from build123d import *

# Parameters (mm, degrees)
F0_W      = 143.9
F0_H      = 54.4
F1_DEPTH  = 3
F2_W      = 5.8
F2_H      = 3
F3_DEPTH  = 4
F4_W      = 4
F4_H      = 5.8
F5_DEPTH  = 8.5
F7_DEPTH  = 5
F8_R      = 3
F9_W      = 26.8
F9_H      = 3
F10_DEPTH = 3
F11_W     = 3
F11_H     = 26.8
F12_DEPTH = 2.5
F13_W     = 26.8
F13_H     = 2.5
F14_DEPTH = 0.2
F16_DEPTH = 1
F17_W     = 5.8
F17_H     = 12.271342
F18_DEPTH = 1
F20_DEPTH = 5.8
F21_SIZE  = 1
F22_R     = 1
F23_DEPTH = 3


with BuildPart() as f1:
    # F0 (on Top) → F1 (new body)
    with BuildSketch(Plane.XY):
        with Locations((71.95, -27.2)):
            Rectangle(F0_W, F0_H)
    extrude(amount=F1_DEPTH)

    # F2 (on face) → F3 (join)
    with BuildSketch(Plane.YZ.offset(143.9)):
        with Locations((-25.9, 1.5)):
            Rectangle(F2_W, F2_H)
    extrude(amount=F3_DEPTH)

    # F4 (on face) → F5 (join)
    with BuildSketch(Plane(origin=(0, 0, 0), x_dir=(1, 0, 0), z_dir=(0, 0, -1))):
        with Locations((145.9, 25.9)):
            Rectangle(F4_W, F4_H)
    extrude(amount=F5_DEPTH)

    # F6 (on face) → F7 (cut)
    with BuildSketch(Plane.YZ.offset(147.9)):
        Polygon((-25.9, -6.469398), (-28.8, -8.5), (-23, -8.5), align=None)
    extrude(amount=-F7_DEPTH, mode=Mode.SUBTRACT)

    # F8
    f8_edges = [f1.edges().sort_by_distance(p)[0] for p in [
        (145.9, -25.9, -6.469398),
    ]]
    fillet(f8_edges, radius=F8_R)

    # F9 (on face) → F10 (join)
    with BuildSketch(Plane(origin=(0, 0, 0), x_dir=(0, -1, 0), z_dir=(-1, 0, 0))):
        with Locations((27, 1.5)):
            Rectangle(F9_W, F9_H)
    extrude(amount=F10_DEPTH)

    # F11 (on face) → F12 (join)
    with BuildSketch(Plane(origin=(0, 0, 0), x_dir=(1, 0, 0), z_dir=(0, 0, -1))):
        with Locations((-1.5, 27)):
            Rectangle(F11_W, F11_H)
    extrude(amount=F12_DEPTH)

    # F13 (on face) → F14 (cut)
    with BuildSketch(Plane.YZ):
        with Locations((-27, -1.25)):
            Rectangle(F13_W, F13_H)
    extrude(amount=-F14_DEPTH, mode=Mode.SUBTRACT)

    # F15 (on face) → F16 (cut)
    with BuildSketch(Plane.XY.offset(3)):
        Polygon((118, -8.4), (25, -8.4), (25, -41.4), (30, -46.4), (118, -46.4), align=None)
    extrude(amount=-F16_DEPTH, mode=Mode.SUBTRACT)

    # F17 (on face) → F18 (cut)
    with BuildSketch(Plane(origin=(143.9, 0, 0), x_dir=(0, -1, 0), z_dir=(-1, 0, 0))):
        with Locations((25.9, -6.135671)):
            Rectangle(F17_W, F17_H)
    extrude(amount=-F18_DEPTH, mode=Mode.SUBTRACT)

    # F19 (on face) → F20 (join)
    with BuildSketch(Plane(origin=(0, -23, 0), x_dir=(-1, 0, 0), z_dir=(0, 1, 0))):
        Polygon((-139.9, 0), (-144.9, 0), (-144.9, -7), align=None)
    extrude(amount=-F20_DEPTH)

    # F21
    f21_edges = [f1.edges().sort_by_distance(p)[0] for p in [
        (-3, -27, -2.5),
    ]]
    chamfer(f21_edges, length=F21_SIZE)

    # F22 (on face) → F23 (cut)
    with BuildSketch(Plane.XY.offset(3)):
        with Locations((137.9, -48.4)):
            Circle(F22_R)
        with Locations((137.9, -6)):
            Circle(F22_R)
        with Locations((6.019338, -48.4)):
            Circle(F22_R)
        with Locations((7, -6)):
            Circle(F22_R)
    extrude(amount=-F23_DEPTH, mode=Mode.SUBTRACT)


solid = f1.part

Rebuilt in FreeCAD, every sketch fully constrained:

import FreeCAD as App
import Part
import Sketcher
from FreeCAD import Vector
Q = App.Units.Quantity


def edges_at(feature, points):
    """Names of the edges that pass closest to the given points."""
    edges = feature.Shape.Edges
    near = lambda p: min(range(len(edges)), key=lambda i: edges[i].distToShape(Part.Vertex(*p))[0])
    return sorted({f"Edge{near(p) + 1}" for p in points})

doc = App.newDocument("Part")
body = doc.addObject("PartDesign::Body", "Body")

# Sketch on XY plane
sketch1 = doc.addObject("Sketcher::SketchObject", "Sketch")
body.addObject(sketch1)
sketch1.AttachmentSupport = (doc.XY_Plane, [""])
sketch1.MapMode = "FlatFace"
sketch1.addGeometry(Part.LineSegment(Vector(0, 0, 0), Vector(0, -54.4, 0)), False)
sketch1.addGeometry(Part.LineSegment(Vector(0, -54.4, 0), Vector(143.9, -54.4, 0)), False)
sketch1.addGeometry(Part.LineSegment(Vector(143.9, -54.4, 0), Vector(143.9, 0, 0)), False)
sketch1.addGeometry(Part.LineSegment(Vector(143.9, 0, 0), Vector(0, 0, 0)), False)
sketch1.addConstraint(Sketcher.Constraint("Coincident", 0, 2, 1, 1))
sketch1.addConstraint(Sketcher.Constraint("Coincident", 1, 2, 2, 1))
sketch1.addConstraint(Sketcher.Constraint("Coincident", 2, 2, 3, 1))
sketch1.addConstraint(Sketcher.Constraint("Coincident", 3, 2, 0, 1))
sketch1.addConstraint(Sketcher.Constraint("Vertical", 0))
sketch1.addConstraint(Sketcher.Constraint("Horizontal", 1))
sketch1.addConstraint(Sketcher.Constraint("Vertical", 2))
sketch1.addConstraint(Sketcher.Constraint("Horizontal", 3))
sketch1.addConstraint(Sketcher.Constraint("Coincident", 3, 2, -1, 1))
sketch1.addConstraint(Sketcher.Constraint("DistanceX", 1, 1, 1, 2, Q("143.9 mm")))
sketch1.addConstraint(Sketcher.Constraint("DistanceY", 0, 2, 0, 1, Q("54.4 mm")))
pad1 = doc.addObject("PartDesign::Pad", "Pad")
body.addObject(pad1)
pad1.Profile = sketch1
pad1.Length = 3

# Sketch on YZ plane
sketch2 = doc.addObject("Sketcher::SketchObject", "Sketch001")
body.addObject(sketch2)
sketch2.AttachmentSupport = (doc.YZ_Plane, [""])
sketch2.MapMode = "FlatFace"
sketch2.AttachmentOffset = App.Placement(Vector(0, 0, 143.9), App.Rotation())
sketch2.addGeometry(Part.LineSegment(Vector(-28.8, 3, 0), Vector(-28.8, 0, 0)), False)
sketch2.addGeometry(Part.LineSegment(Vector(-28.8, 0, 0), Vector(-23, 0, 0)), False)
sketch2.addGeometry(Part.LineSegment(Vector(-23, 0, 0), Vector(-23, 3, 0)), False)
sketch2.addGeometry(Part.LineSegment(Vector(-23, 3, 0), Vector(-28.8, 3, 0)), False)
sketch2.addConstraint(Sketcher.Constraint("Coincident", 0, 2, 1, 1))
sketch2.addConstraint(Sketcher.Constraint("Coincident", 1, 2, 2, 1))
sketch2.addConstraint(Sketcher.Constraint("Coincident", 2, 2, 3, 1))
sketch2.addConstraint(Sketcher.Constraint("Coincident", 3, 2, 0, 1))
sketch2.addConstraint(Sketcher.Constraint("Vertical", 0))
sketch2.addConstraint(Sketcher.Constraint("Horizontal", 1))
sketch2.addConstraint(Sketcher.Constraint("Vertical", 2))
sketch2.addConstraint(Sketcher.Constraint("Horizontal", 3))
sketch2.addConstraint(Sketcher.Constraint("PointOnObject", 0, 2, -1))
sketch2.addConstraint(Sketcher.Constraint("DistanceY", 0, 2, 0, 1, Q("3 mm")))
sketch2.addConstraint(Sketcher.Constraint("DistanceX", 1, 1, 1, 2, Q("5.8 mm")))
sketch2.addConstraint(Sketcher.Constraint("DistanceX", 1, 2, -1, 1, Q("23 mm")))
pad2 = doc.addObject("PartDesign::Pad", "Pad001")
body.addObject(pad2)
pad2.Profile = sketch2
pad2.Length = 4

# Sketch on XY plane
sketch3 = doc.addObject("Sketcher::SketchObject", "Sketch002")
body.addObject(sketch3)
sketch3.AttachmentSupport = (doc.XY_Plane, [""])
sketch3.MapMode = "FlatFace"
sketch3.addGeometry(Part.LineSegment(Vector(143.9, -28.8, 0), Vector(143.9, -23, 0)), False)
sketch3.addGeometry(Part.LineSegment(Vector(143.9, -23, 0), Vector(147.9, -23, 0)), False)
sketch3.addGeometry(Part.LineSegment(Vector(147.9, -23, 0), Vector(147.9, -28.8, 0)), False)
sketch3.addGeometry(Part.LineSegment(Vector(147.9, -28.8, 0), Vector(143.9, -28.8, 0)), False)
sketch3.addConstraint(Sketcher.Constraint("Coincident", 0, 2, 1, 1))
sketch3.addConstraint(Sketcher.Constraint("Coincident", 1, 2, 2, 1))
sketch3.addConstraint(Sketcher.Constraint("Coincident", 2, 2, 3, 1))
sketch3.addConstraint(Sketcher.Constraint("Coincident", 3, 2, 0, 1))
sketch3.addConstraint(Sketcher.Constraint("Vertical", 0))
sketch3.addConstraint(Sketcher.Constraint("Horizontal", 1))
sketch3.addConstraint(Sketcher.Constraint("Vertical", 2))
sketch3.addConstraint(Sketcher.Constraint("Horizontal", 3))
sketch3.addConstraint(Sketcher.Constraint("DistanceX", 1, 1, 1, 2, Q("4 mm")))
sketch3.addConstraint(Sketcher.Constraint("DistanceY", 0, 1, 0, 2, Q("5.8 mm")))
sketch3.addConstraint(Sketcher.Constraint("DistanceY", 0, 2, -1, 1, Q("23 mm")))
sketch3.addConstraint(Sketcher.Constraint("DistanceX", -1, 1, 0, 2, Q("143.9 mm")))
pad3 = doc.addObject("PartDesign::Pad", "Pad002")
body.addObject(pad3)
pad3.Profile = sketch3
pad3.Length = 8.5
pad3.Reversed = True

# Sketch on YZ plane
sketch4 = doc.addObject("Sketcher::SketchObject", "Sketch003")
body.addObject(sketch4)
sketch4.AttachmentSupport = (doc.YZ_Plane, [""])
sketch4.MapMode = "FlatFace"
sketch4.AttachmentOffset = App.Placement(Vector(0, 0, 147.9), App.Rotation())
sketch4.addGeometry(Part.LineSegment(Vector(-25.9, -6.469398, 0), Vector(-28.8, -8.5, 0)), False)
sketch4.addGeometry(Part.LineSegment(Vector(-28.8, -8.5, 0), Vector(-23, -8.5, 0)), False)
sketch4.addGeometry(Part.LineSegment(Vector(-23, -8.5, 0), Vector(-25.9, -6.469398, 0)), False)
sketch4.addConstraint(Sketcher.Constraint("Coincident", 0, 2, 1, 1))
sketch4.addConstraint(Sketcher.Constraint("Coincident", 1, 2, 2, 1))
sketch4.addConstraint(Sketcher.Constraint("Coincident", 2, 2, 0, 1))
sketch4.addConstraint(Sketcher.Constraint("Horizontal", 1))
sketch4.addConstraint(Sketcher.Constraint("Equal", 0, 2))
sketch4.addConstraint(Sketcher.Constraint("Angle", 0, Q("-144.999998 deg")))
sketch4.addConstraint(Sketcher.Constraint("DistanceX", 1, 1, 1, 2, Q("5.8 mm")))
sketch4.addConstraint(Sketcher.Constraint("DistanceX", 1, 2, -1, 1, Q("23 mm")))
sketch4.addConstraint(Sketcher.Constraint("DistanceY", 0, 2, -1, 1, Q("8.5 mm")))
pocket1 = doc.addObject("PartDesign::Pocket", "Pocket")
body.addObject(pocket1)
pocket1.Profile = sketch4
pocket1.Length = 5
doc.recompute()

fillet = doc.addObject("PartDesign::Fillet", "Fillet")
body.addObject(fillet)
fillet.Base = (pocket1, edges_at(pocket1, [(145.9, -25.9, -6.469)]))
fillet.Radius = 3

# Sketch on YZ plane
sketch5 = doc.addObject("Sketcher::SketchObject", "Sketch004")
body.addObject(sketch5)
sketch5.AttachmentSupport = (doc.YZ_Plane, [""])
sketch5.MapMode = "FlatFace"
sketch5.addGeometry(Part.LineSegment(Vector(-13.6, 3, 0), Vector(-13.6, 0, 0)), False)
sketch5.addGeometry(Part.LineSegment(Vector(-13.6, 0, 0), Vector(-40.4, 0, 0)), False)
sketch5.addGeometry(Part.LineSegment(Vector(-40.4, 0, 0), Vector(-40.4, 3, 0)), False)
sketch5.addGeometry(Part.LineSegment(Vector(-40.4, 3, 0), Vector(-13.6, 3, 0)), False)
sketch5.addConstraint(Sketcher.Constraint("Coincident", 0, 2, 1, 1))
sketch5.addConstraint(Sketcher.Constraint("Coincident", 1, 2, 2, 1))
sketch5.addConstraint(Sketcher.Constraint("Coincident", 2, 2, 3, 1))
sketch5.addConstraint(Sketcher.Constraint("Coincident", 3, 2, 0, 1))
sketch5.addConstraint(Sketcher.Constraint("Vertical", 0))
sketch5.addConstraint(Sketcher.Constraint("Horizontal", 1))
sketch5.addConstraint(Sketcher.Constraint("Vertical", 2))
sketch5.addConstraint(Sketcher.Constraint("Horizontal", 3))
sketch5.addConstraint(Sketcher.Constraint("PointOnObject", 0, 2, -1))
sketch5.addConstraint(Sketcher.Constraint("DistanceY", 0, 2, 0, 1, Q("3 mm")))
sketch5.addConstraint(Sketcher.Constraint("DistanceX", 1, 2, 1, 1, Q("26.8 mm")))
sketch5.addConstraint(Sketcher.Constraint("DistanceX", 0, 2, -1, 1, Q("13.6 mm")))
pad4 = doc.addObject("PartDesign::Pad", "Pad003")
body.addObject(pad4)
pad4.Profile = sketch5
pad4.Length = 3
pad4.Reversed = True

# Sketch on XY plane
sketch6 = doc.addObject("Sketcher::SketchObject", "Sketch005")
body.addObject(sketch6)
sketch6.AttachmentSupport = (doc.XY_Plane, [""])
sketch6.MapMode = "FlatFace"
sketch6.addGeometry(Part.LineSegment(Vector(-3, -40.4, 0), Vector(-3, -13.6, 0)), False)
sketch6.addGeometry(Part.LineSegment(Vector(-3, -13.6, 0), Vector(0, -13.6, 0)), False)
sketch6.addGeometry(Part.LineSegment(Vector(0, -13.6, 0), Vector(0, -40.4, 0)), False)
sketch6.addGeometry(Part.LineSegment(Vector(0, -40.4, 0), Vector(-3, -40.4, 0)), False)
sketch6.addConstraint(Sketcher.Constraint("Coincident", 0, 2, 1, 1))
sketch6.addConstraint(Sketcher.Constraint("Coincident", 1, 2, 2, 1))
sketch6.addConstraint(Sketcher.Constraint("Coincident", 2, 2, 3, 1))
sketch6.addConstraint(Sketcher.Constraint("Coincident", 3, 2, 0, 1))
sketch6.addConstraint(Sketcher.Constraint("Vertical", 0))
sketch6.addConstraint(Sketcher.Constraint("Horizontal", 1))
sketch6.addConstraint(Sketcher.Constraint("Vertical", 2))
sketch6.addConstraint(Sketcher.Constraint("Horizontal", 3))
sketch6.addConstraint(Sketcher.Constraint("PointOnObject", 1, 2, -2))
sketch6.addConstraint(Sketcher.Constraint("DistanceX", 1, 1, 1, 2, Q("3 mm")))
sketch6.addConstraint(Sketcher.Constraint("DistanceY", 0, 1, 0, 2, Q("26.8 mm")))
sketch6.addConstraint(Sketcher.Constraint("DistanceY", 0, 2, -1, 1, Q("13.6 mm")))
pad5 = doc.addObject("PartDesign::Pad", "Pad004")
body.addObject(pad5)
pad5.Profile = sketch6
pad5.Length = 2.5
pad5.Reversed = True

# Sketch on YZ plane
sketch7 = doc.addObject("Sketcher::SketchObject", "Sketch006")
body.addObject(sketch7)
sketch7.AttachmentSupport = (doc.YZ_Plane, [""])
sketch7.MapMode = "FlatFace"
sketch7.addGeometry(Part.LineSegment(Vector(-40.4, 0, 0), Vector(-40.4, -2.5, 0)), False)
sketch7.addGeometry(Part.LineSegment(Vector(-40.4, -2.5, 0), Vector(-13.6, -2.5, 0)), False)
sketch7.addGeometry(Part.LineSegment(Vector(-13.6, -2.5, 0), Vector(-13.6, 0, 0)), False)
sketch7.addGeometry(Part.LineSegment(Vector(-13.6, 0, 0), Vector(-40.4, 0, 0)), False)
sketch7.addConstraint(Sketcher.Constraint("Coincident", 0, 2, 1, 1))
sketch7.addConstraint(Sketcher.Constraint("Coincident", 1, 2, 2, 1))
sketch7.addConstraint(Sketcher.Constraint("Coincident", 2, 2, 3, 1))
sketch7.addConstraint(Sketcher.Constraint("Coincident", 3, 2, 0, 1))
sketch7.addConstraint(Sketcher.Constraint("Vertical", 0))
sketch7.addConstraint(Sketcher.Constraint("Horizontal", 1))
sketch7.addConstraint(Sketcher.Constraint("Vertical", 2))
sketch7.addConstraint(Sketcher.Constraint("Horizontal", 3))
sketch7.addConstraint(Sketcher.Constraint("PointOnObject", 2, 2, -1))
sketch7.addConstraint(Sketcher.Constraint("DistanceX", 1, 1, 1, 2, Q("26.8 mm")))
sketch7.addConstraint(Sketcher.Constraint("DistanceY", 0, 2, 0, 1, Q("2.5 mm")))
sketch7.addConstraint(Sketcher.Constraint("DistanceX", 0, 2, -1, 1, Q("40.4 mm")))
pocket2 = doc.addObject("PartDesign::Pocket", "Pocket001")
body.addObject(pocket2)
pocket2.Profile = sketch7
pocket2.Length = 0.2

# Sketch on XY plane
sketch8 = doc.addObject("Sketcher::SketchObject", "Sketch007")
body.addObject(sketch8)
sketch8.AttachmentSupport = (doc.XY_Plane, [""])
sketch8.MapMode = "FlatFace"
sketch8.AttachmentOffset = App.Placement(Vector(0, 0, 3), App.Rotation())
sketch8.addGeometry(Part.LineSegment(Vector(118, -8.4, 0), Vector(25, -8.4, 0)), False)
sketch8.addGeometry(Part.LineSegment(Vector(25, -8.4, 0), Vector(25, -41.4, 0)), False)
sketch8.addGeometry(Part.LineSegment(Vector(25, -41.4, 0), Vector(30, -46.4, 0)), False)
sketch8.addGeometry(Part.LineSegment(Vector(30, -46.4, 0), Vector(118, -46.4, 0)), False)
sketch8.addGeometry(Part.LineSegment(Vector(118, -46.4, 0), Vector(118, -8.4, 0)), False)
sketch8.addConstraint(Sketcher.Constraint("Coincident", 0, 2, 1, 1))
sketch8.addConstraint(Sketcher.Constraint("Coincident", 1, 2, 2, 1))
sketch8.addConstraint(Sketcher.Constraint("Coincident", 2, 2, 3, 1))
sketch8.addConstraint(Sketcher.Constraint("Coincident", 3, 2, 4, 1))
sketch8.addConstraint(Sketcher.Constraint("Coincident", 4, 2, 0, 1))
sketch8.addConstraint(Sketcher.Constraint("Horizontal", 0))
sketch8.addConstraint(Sketcher.Constraint("Vertical", 1))
sketch8.addConstraint(Sketcher.Constraint("Horizontal", 3))
sketch8.addConstraint(Sketcher.Constraint("Vertical", 4))
sketch8.addConstraint(Sketcher.Constraint("DistanceX", 0, 2, 0, 1, Q("93 mm")))
sketch8.addConstraint(Sketcher.Constraint("DistanceX", 3, 1, 3, 2, Q("88 mm")))
sketch8.addConstraint(Sketcher.Constraint("DistanceY", 1, 2, 1, 1, Q("33 mm")))
sketch8.addConstraint(Sketcher.Constraint("DistanceY", 4, 1, 4, 2, Q("38 mm")))
sketch8.addConstraint(Sketcher.Constraint("DistanceX", -1, 1, 0, 2, Q("25 mm")))
sketch8.addConstraint(Sketcher.Constraint("DistanceY", 0, 2, -1, 1, Q("8.4 mm")))
pocket3 = doc.addObject("PartDesign::Pocket", "Pocket002")
body.addObject(pocket3)
pocket3.Profile = sketch8
pocket3.Length = 1

# Sketch on YZ plane
sketch9 = doc.addObject("Sketcher::SketchObject", "Sketch008")
body.addObject(sketch9)
sketch9.AttachmentSupport = (doc.YZ_Plane, [""])
sketch9.MapMode = "FlatFace"
sketch9.AttachmentOffset = App.Placement(Vector(0, 0, 143.9), App.Rotation())
sketch9.addGeometry(Part.LineSegment(Vector(-23, 0, 0), Vector(-23, -12.271342, 0)), False)
sketch9.addGeometry(Part.LineSegment(Vector(-23, -12.271342, 0), Vector(-28.8, -12.271342, 0)), False)
sketch9.addGeometry(Part.LineSegment(Vector(-28.8, -12.271342, 0), Vector(-28.8, 0, 0)), False)
sketch9.addGeometry(Part.LineSegment(Vector(-28.8, 0, 0), Vector(-23, 0, 0)), False)
sketch9.addConstraint(Sketcher.Constraint("Coincident", 0, 2, 1, 1))
sketch9.addConstraint(Sketcher.Constraint("Coincident", 1, 2, 2, 1))
sketch9.addConstraint(Sketcher.Constraint("Coincident", 2, 2, 3, 1))
sketch9.addConstraint(Sketcher.Constraint("Coincident", 3, 2, 0, 1))
sketch9.addConstraint(Sketcher.Constraint("Vertical", 0))
sketch9.addConstraint(Sketcher.Constraint("Horizontal", 1))
sketch9.addConstraint(Sketcher.Constraint("Vertical", 2))
sketch9.addConstraint(Sketcher.Constraint("Horizontal", 3))
sketch9.addConstraint(Sketcher.Constraint("PointOnObject", 2, 2, -1))
sketch9.addConstraint(Sketcher.Constraint("DistanceX", 1, 2, 1, 1, Q("5.8 mm")))
sketch9.addConstraint(Sketcher.Constraint("DistanceX", 0, 2, -1, 1, Q("23 mm")))
sketch9.addConstraint(Sketcher.Constraint("DistanceY", 0, 2, 0, 1, Q("12.271342 mm")))
pocket4 = doc.addObject("PartDesign::Pocket", "Pocket003")
body.addObject(pocket4)
pocket4.Profile = sketch9
pocket4.Length = 1
pocket4.Reversed = True

# Sketch on XZ plane
sketch10 = doc.addObject("Sketcher::SketchObject", "Sketch009")
body.addObject(sketch10)
sketch10.AttachmentSupport = (doc.XZ_Plane, [""])
sketch10.MapMode = "FlatFace"
sketch10.AttachmentOffset = App.Placement(Vector(0, 0, 23), App.Rotation())
sketch10.addGeometry(Part.LineSegment(Vector(139.9, 0, 0), Vector(144.9, 0, 0)), False)
sketch10.addGeometry(Part.LineSegment(Vector(144.9, 0, 0), Vector(144.9, -7, 0)), False)
sketch10.addGeometry(Part.LineSegment(Vector(144.9, -7, 0), Vector(139.9, 0, 0)), False)
sketch10.addConstraint(Sketcher.Constraint("Coincident", 0, 2, 1, 1))
sketch10.addConstraint(Sketcher.Constraint("Coincident", 1, 2, 2, 1))
sketch10.addConstraint(Sketcher.Constraint("Coincident", 2, 2, 0, 1))
sketch10.addConstraint(Sketcher.Constraint("Horizontal", 0))
sketch10.addConstraint(Sketcher.Constraint("Vertical", 1))
sketch10.addConstraint(Sketcher.Constraint("PointOnObject", 0, 2, -1))
sketch10.addConstraint(Sketcher.Constraint("DistanceX", 0, 1, 0, 2, Q("5 mm")))
sketch10.addConstraint(Sketcher.Constraint("DistanceY", 1, 2, 1, 1, Q("7 mm")))
sketch10.addConstraint(Sketcher.Constraint("DistanceX", -1, 1, 0, 2, Q("144.9 mm")))
pad6 = doc.addObject("PartDesign::Pad", "Pad005")
body.addObject(pad6)
pad6.Profile = sketch10
pad6.Length = 5.8
doc.recompute()

chamfer = doc.addObject("PartDesign::Chamfer", "Chamfer")
body.addObject(chamfer)
chamfer.Base = (pad6, edges_at(pad6, [(-3, -27, -2.5)]))
chamfer.Size = 1

# Sketch on XY plane
sketch11 = doc.addObject("Sketcher::SketchObject", "Sketch010")
body.addObject(sketch11)
sketch11.AttachmentSupport = (doc.XY_Plane, [""])
sketch11.MapMode = "FlatFace"
sketch11.AttachmentOffset = App.Placement(Vector(0, 0, 3), App.Rotation())
sketch11.addGeometry(Part.Circle(Vector(137.9, -48.4, 0), Vector(0, 0, 1), 1), False)
sketch11.addGeometry(Part.Circle(Vector(137.9, -6, 0), Vector(0, 0, 1), 1), False)
sketch11.addGeometry(Part.Circle(Vector(6.019338, -48.4, 0), Vector(0, 0, 1), 1), False)
sketch11.addGeometry(Part.Circle(Vector(7, -6, 0), Vector(0, 0, 1), 1), False)
sketch11.addConstraint(Sketcher.Constraint("Equal", 0, 1))
sketch11.addConstraint(Sketcher.Constraint("Equal", 1, 2))
sketch11.addConstraint(Sketcher.Constraint("Equal", 2, 3))
sketch11.addConstraint(Sketcher.Constraint("Horizontal", 0, 3, 2, 3))
sketch11.addConstraint(Sketcher.Constraint("Horizontal", 1, 3, 3, 3))
sketch11.addConstraint(Sketcher.Constraint("Vertical", 0, 3, 1, 3))
sketch11.addConstraint(Sketcher.Constraint("Diameter", 0, Q("2 mm")))
sketch11.addConstraint(Sketcher.Constraint("DistanceY", 1, 3, -1, 1, Q("6 mm")))
sketch11.addConstraint(Sketcher.Constraint("DistanceX", -1, 1, 3, 3, Q("7 mm")))
sketch11.addConstraint(Sketcher.Constraint("DistanceX", -1, 1, 0, 3, Q("137.9 mm")))
sketch11.addConstraint(Sketcher.Constraint("DistanceY", 0, 3, -1, 1, Q("48.4 mm")))
sketch11.addConstraint(Sketcher.Constraint("DistanceX", -1, 1, 2, 3, Q("6.019338 mm")))
pocket5 = doc.addObject("PartDesign::Pocket", "Pocket004")
body.addObject(pocket5)
pocket5.Profile = sketch11
pocket5.Length = 3

doc.recompute()
